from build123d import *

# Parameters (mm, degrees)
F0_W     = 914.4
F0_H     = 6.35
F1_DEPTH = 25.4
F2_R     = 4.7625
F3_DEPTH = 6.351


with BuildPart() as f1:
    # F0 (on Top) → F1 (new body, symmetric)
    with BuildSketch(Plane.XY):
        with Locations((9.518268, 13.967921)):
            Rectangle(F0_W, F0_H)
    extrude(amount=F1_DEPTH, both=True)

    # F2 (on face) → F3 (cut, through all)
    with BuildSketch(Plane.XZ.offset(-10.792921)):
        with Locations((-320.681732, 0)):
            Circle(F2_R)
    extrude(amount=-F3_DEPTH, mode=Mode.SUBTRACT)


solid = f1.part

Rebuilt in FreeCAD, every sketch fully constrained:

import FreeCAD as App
import Part
import Sketcher

V = App.Vector
Q = App.Units.Quantity


def add_polygon(sketch, points):
    """Adds a closed chain of lines whose ends are joined by coincident constraints."""
    first, n = sketch.GeometryCount, len(points)
    for a, b in zip(points, points[1:] + points[:1]):
        sketch.addGeometry(Part.LineSegment(App.Vector(*a, 0), App.Vector(*b, 0)), False)
    for i in range(n):
        sketch.addConstraint(Sketcher.Constraint("Coincident", first + i, 2, first + (i + 1) % n, 1))

doc = App.newDocument("Part")
params = doc.addObject("Spreadsheet::Sheet", "Params")
for row, (alias, value) in enumerate([
    ("sketch1_width", "36 in"),
    ("sketch1_height", "0.25 in"),
    ("pad1_length", "2 in"),
    ("sketch2_diameter", "0.375 in"),
], start=1):
    params.set(f"A{row}", alias)
    params.set(f"B{row}", "=" + value)
    params.setAlias(f"B{row}", alias)

body = doc.addObject("PartDesign::Body", "Body")

# Sketch on XY plane
sketch1 = doc.addObject("Sketcher::SketchObject", "Sketch")
body.addObject(sketch1)
sketch1.AttachmentSupport = (doc.XY_Plane, [""])
sketch1.MapMode = "FlatFace"
add_polygon(sketch1, [(-447.681732, 17.142921), (-447.681732, 10.792921), (466.718268, 10.792921), (466.718268, 17.142921)])  # lines 0-3
sketch1.addConstraint(Sketcher.Constraint("Vertical", 0))
sketch1.addConstraint(Sketcher.Constraint("Horizontal", 1))
sketch1.addConstraint(Sketcher.Constraint("Vertical", 2))
sketch1.addConstraint(Sketcher.Constraint("Horizontal", 3))
sketch1.addConstraint(Sketcher.Constraint("DistanceX", 1, 1, 1, 2, Q("36 in")))
sketch1.addConstraint(Sketcher.Constraint("DistanceY", 0, 2, 0, 1, Q("0.25 in")))
sketch1.addConstraint(Sketcher.Constraint("DistanceX", 0, 2, -1, 1, Q("447.681732 mm")))
sketch1.addConstraint(Sketcher.Constraint("DistanceY", -1, 1, 0, 2, Q("10.792921 mm")))
sketch1.setExpression("Constraints[8]", "Params.sketch1_width")
sketch1.setExpression("Constraints[9]", "Params.sketch1_height")
pad1 = doc.addObject("PartDesign::Pad", "Pad")
body.addObject(pad1)
pad1.Profile = sketch1
pad1.setExpression("Length", "Params.pad1_length")
pad1.Midplane = True

# Sketch on XZ plane
sketch2 = doc.addObject("Sketcher::SketchObject", "Sketch001")
body.addObject(sketch2)
sketch2.AttachmentSupport = (doc.XZ_Plane, [""])
sketch2.MapMode = "FlatFace"
sketch2.AttachmentOffset = App.Placement(V(0, 0, -10.792921), App.Rotation())
sketch2.addGeometry(Part.Circle(V(-320.681732, 0, 0), V(0, 0, 1), 4.7625), False)
sketch2.addConstraint(Sketcher.Constraint("PointOnObject", 0, 3, -1))
sketch2.addConstraint(Sketcher.Constraint("Diameter", 0, Q("0.375 in")))
sketch2.addConstraint(Sketcher.Constraint("DistanceX", 0, 3, -1, 1, Q("320.681732 mm")))
sketch2.setExpression("Constraints[1]", "Params.sketch2_diameter")
pocket1 = doc.addObject("PartDesign::Pocket", "Pocket")
body.addObject(pocket1)
pocket1.Profile = sketch2
pocket1.Type = "ThroughAll"

doc.recompute()
